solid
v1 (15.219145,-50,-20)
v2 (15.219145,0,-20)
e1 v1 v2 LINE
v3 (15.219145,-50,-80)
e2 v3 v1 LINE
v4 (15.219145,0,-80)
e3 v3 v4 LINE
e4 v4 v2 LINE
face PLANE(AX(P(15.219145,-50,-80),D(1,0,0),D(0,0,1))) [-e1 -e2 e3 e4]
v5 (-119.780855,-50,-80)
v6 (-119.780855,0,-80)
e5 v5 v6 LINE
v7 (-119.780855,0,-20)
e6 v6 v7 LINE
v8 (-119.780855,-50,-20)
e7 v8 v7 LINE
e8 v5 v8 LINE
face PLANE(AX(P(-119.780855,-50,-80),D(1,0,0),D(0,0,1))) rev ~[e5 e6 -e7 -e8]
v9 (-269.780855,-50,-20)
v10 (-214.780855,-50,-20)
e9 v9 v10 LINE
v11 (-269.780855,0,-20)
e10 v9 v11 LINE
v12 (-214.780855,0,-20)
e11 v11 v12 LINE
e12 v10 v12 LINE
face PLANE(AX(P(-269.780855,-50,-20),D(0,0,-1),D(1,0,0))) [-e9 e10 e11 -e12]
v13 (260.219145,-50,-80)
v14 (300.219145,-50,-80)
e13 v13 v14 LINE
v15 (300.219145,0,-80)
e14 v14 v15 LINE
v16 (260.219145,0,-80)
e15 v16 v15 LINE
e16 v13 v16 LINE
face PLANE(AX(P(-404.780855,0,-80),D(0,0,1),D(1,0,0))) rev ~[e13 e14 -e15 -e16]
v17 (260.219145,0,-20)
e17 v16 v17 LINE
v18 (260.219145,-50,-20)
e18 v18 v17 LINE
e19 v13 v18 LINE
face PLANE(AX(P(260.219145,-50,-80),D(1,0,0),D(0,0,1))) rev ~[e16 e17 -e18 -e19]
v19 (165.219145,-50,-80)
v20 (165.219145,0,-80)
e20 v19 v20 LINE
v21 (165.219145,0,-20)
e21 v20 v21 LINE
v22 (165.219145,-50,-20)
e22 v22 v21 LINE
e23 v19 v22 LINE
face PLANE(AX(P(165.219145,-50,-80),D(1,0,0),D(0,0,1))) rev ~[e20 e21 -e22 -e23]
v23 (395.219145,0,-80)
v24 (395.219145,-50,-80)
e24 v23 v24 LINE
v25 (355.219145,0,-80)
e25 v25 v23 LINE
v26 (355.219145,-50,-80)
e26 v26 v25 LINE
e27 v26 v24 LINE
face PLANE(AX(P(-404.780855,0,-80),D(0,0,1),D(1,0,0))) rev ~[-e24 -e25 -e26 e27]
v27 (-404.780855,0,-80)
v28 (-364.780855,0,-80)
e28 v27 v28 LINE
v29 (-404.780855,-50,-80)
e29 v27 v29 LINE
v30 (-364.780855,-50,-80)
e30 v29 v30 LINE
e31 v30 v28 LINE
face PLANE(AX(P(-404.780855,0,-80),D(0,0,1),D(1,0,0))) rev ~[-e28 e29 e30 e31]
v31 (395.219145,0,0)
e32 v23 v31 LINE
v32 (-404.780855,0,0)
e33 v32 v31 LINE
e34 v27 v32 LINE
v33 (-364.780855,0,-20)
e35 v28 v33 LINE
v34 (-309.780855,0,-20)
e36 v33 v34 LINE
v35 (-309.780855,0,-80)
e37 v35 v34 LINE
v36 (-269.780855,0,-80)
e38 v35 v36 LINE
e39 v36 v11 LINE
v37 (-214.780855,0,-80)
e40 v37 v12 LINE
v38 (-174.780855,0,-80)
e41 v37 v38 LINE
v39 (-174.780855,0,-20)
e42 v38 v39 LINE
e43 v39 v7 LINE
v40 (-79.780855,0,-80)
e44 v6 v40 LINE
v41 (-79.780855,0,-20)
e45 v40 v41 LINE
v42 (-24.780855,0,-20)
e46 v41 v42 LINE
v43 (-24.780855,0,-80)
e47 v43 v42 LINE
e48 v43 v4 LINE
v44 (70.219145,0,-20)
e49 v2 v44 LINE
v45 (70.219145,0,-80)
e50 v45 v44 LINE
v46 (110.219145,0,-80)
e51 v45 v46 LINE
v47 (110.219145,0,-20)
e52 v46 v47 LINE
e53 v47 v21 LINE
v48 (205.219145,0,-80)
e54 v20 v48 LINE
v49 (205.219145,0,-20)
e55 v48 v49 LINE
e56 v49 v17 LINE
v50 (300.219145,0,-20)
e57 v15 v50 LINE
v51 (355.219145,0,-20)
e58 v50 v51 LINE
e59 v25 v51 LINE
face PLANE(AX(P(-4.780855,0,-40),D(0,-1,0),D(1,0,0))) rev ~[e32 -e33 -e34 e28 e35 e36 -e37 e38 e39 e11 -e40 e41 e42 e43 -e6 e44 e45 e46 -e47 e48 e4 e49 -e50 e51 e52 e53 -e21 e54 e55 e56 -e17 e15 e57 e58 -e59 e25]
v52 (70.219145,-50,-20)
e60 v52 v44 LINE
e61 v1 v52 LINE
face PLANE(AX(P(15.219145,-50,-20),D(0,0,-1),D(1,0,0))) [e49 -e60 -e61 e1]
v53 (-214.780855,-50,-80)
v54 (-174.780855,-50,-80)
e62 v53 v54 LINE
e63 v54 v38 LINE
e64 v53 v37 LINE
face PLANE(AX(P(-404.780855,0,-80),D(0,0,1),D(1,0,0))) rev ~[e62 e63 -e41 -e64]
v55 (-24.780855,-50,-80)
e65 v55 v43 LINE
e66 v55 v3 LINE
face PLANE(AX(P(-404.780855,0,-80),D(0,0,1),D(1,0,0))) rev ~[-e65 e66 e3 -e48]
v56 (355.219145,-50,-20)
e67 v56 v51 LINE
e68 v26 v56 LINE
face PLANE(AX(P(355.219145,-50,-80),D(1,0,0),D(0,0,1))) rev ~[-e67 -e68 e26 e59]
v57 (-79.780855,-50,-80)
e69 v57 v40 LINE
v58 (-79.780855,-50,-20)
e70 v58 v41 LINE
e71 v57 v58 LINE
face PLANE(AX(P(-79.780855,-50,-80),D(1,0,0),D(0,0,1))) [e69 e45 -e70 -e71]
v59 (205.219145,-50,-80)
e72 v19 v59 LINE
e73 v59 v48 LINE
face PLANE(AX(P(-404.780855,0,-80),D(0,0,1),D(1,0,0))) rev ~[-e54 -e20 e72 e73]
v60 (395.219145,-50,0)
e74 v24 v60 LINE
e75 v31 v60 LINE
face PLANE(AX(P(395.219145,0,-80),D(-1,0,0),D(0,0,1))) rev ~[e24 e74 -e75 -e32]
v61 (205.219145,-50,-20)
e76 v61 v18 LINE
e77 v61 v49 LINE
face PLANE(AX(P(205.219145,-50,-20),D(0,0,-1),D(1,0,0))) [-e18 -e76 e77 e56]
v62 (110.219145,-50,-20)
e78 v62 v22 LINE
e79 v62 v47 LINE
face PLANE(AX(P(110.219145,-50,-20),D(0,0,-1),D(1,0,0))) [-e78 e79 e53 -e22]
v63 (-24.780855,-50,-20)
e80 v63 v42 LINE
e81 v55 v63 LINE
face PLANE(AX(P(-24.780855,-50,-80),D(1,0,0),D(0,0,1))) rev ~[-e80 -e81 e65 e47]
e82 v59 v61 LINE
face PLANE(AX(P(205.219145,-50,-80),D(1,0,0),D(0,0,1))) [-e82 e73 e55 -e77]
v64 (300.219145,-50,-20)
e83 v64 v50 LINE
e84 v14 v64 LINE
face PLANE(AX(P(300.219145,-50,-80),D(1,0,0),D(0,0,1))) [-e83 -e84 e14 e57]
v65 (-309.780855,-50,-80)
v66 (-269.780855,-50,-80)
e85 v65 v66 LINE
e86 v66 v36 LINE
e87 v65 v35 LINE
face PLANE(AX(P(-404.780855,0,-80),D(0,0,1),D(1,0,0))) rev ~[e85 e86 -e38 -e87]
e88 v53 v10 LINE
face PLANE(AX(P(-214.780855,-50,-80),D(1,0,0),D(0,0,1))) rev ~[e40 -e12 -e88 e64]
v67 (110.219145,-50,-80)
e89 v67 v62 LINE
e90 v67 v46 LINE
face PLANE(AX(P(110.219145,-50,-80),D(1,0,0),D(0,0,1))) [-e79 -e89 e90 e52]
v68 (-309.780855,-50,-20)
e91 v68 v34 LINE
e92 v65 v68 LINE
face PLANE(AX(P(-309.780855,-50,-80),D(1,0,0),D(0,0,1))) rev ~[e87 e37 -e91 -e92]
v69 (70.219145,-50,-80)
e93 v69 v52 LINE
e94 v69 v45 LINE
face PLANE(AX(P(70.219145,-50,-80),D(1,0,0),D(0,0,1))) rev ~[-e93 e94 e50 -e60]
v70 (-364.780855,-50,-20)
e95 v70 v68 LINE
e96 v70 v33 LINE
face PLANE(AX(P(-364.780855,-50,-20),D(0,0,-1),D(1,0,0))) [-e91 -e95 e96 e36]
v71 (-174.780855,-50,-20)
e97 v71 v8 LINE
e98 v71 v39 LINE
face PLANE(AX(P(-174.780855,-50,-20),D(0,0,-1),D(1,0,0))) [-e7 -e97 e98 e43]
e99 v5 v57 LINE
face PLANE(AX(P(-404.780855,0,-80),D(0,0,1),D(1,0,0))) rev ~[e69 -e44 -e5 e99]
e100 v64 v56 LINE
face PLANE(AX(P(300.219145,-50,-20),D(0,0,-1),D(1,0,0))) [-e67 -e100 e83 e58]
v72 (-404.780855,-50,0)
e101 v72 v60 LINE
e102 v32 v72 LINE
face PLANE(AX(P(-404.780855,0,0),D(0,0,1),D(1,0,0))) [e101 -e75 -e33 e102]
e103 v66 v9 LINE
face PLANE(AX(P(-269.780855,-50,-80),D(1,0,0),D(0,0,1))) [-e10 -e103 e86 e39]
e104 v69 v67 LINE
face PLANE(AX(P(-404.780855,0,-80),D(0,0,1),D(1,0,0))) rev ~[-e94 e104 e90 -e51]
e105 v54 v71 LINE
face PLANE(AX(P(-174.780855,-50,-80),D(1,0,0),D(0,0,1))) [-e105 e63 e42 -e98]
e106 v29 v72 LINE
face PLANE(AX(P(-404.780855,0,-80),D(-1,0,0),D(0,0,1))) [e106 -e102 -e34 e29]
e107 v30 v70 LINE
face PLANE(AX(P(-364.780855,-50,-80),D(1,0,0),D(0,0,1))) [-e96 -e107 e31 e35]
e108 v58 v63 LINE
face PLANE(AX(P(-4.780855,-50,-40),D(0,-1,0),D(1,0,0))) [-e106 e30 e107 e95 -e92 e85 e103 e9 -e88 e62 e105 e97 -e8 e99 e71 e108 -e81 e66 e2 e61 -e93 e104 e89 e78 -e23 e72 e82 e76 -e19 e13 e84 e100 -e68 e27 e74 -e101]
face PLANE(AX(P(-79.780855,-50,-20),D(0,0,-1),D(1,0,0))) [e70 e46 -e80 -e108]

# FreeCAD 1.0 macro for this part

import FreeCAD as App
import Part
import Sketcher

V = App.Vector


def add_polygon(sketch, points):
    """Adds a closed chain of lines whose ends are joined by coincident constraints."""
    first, n = sketch.GeometryCount, len(points)
    for a, b in zip(points, points[1:] + points[:1]):
        sketch.addGeometry(Part.LineSegment(App.Vector(*a, 0), App.Vector(*b, 0)), False)
    for i in range(n):
        sketch.addConstraint(Sketcher.Constraint("Coincident", first + i, 2, first + (i + 1) % n, 1))

doc = App.newDocument("Part")
params = doc.addObject("Spreadsheet::Sheet", "Params")
for row, (alias, value) in enumerate([
    ("sketch1_width", "800 mm"),
    ("sketch1_height", "80 mm"),
    ("pad1_length", "50 mm"),
    ("sketch2_width", "55 mm"),
    ("sketch2_height", "60 mm"),
    ("pocket1_length", "50 mm"),
], start=1):
    params.set(f"A{row}", alias)
    params.set(f"B{row}", "=" + value)
    params.setAlias(f"B{row}", alias)

body = doc.addObject("PartDesign::Body", "Body")

# Sketch on XZ plane
sketch1 = doc.addObject("Sketcher::SketchObject", "Sketch")
body.addObject(sketch1)
sketch1.AttachmentSupport = (doc.XZ_Plane, [""])
sketch1.MapMode = "FlatFace"
add_polygon(sketch1, [(-404.780855, 0), (-404.780855, -80), (395.219145, -80), (395.219145, 0)])  # lines 0-3
sketch1.addConstraint(Sketcher.Constraint("Vertical", 0))
sketch1.addConstraint(Sketcher.Constraint("Horizontal", 1))
sketch1.addConstraint(Sketcher.Constraint("Vertical", 2))
sketch1.addConstraint(Sketcher.Constraint("Horizontal", 3))
sketch1.addConstraint(Sketcher.Constraint("PointOnObject", 2, 2, -1))
sketch1.addConstraint(Sketcher.Constraint("DistanceX", 1, 1, 1, 2, 800.0))
sketch1.addConstraint(Sketcher.Constraint("DistanceY", 0, 2, 0, 1, 80.0))
sketch1.addConstraint(Sketcher.Constraint("DistanceX", 0, 2, -1, 1, 404.780855))
sketch1.setExpression("Constraints[9]", "Params.sketch1_width")
sketch1.setExpression("Constraints[10]", "Params.sketch1_height")
pad1 = doc.addObject("PartDesign::Pad", "Pad")
body.addObject(pad1)
pad1.Profile = sketch1
pad1.setExpression("Length", "Params.pad1_length")

# Sketch on XZ plane
sketch2 = doc.addObject("Sketcher::SketchObject", "Sketch001")
body.addObject(sketch2)
sketch2.AttachmentSupport = (doc.XZ_Plane, [""])
sketch2.MapMode = "FlatFace"
sketch2.AttachmentOffset = App.Placement(V(0, 0, 50), App.Rotation())
add_polygon(sketch2, [(-364.780855, -20), (-364.780855, -80), (-309.780855, -80), (-309.780855, -20)])  # lines 0-3
add_polygon(sketch2, [(-269.780855, -20), (-269.780855, -80), (-214.780855, -80), (-214.780855, -20)])  # lines 4-7
add_polygon(sketch2, [(-174.780855, -20), (-174.780855, -80), (-119.780855, -80), (-119.780855, -20)])  # lines 8-11
add_polygon(sketch2, [(-79.780855, -20), (-79.780855, -80), (-24.780855, -80), (-24.780855, -20)])  # lines 12-15
add_polygon(sketch2, [(15.219145, -20), (15.219145, -80), (70.219145, -80), (70.219145, -20)])  # lines 16-19
add_polygon(sketch2, [(110.219145, -20), (110.219145, -80), (165.219145, -80), (165.219145, -20)])  # lines 20-23
add_polygon(sketch2, [(205.219145, -20), (205.219145, -80), (260.219145, -80), (260.219145, -20)])  # lines 24-27
add_polygon(sketch2, [(300.219145, -20), (300.219145, -80), (355.219145, -80), (355.219145, -20)])  # lines 28-31
sketch2.addConstraint(Sketcher.Constraint("Vertical", 0))
sketch2.addConstraint(Sketcher.Constraint("Horizontal", 1))
sketch2.addConstraint(Sketcher.Constraint("Vertical", 2))
sketch2.addConstraint(Sketcher.Constraint("Horizontal", 3))
sketch2.addConstraint(Sketcher.Constraint("Vertical", 4))
sketch2.addConstraint(Sketcher.Constraint("Horizontal", 5))
sketch2.addConstraint(Sketcher.Constraint("Vertical", 6))
sketch2.addConstraint(Sketcher.Constraint("Horizontal", 7))
sketch2.addConstraint(Sketcher.Constraint("Vertical", 8))
sketch2.addConstraint(Sketcher.Constraint("Horizontal", 9))
sketch2.addConstraint(Sketcher.Constraint("Vertical", 10))
sketch2.addConstraint(Sketcher.Constraint("Horizontal", 11))
sketch2.addConstraint(Sketcher.Constraint("Vertical", 12))
sketch2.addConstraint(Sketcher.Constraint("Horizontal", 13))
sketch2.addConstraint(Sketcher.Constraint("Vertical", 14))
sketch2.addConstraint(Sketcher.Constraint("Horizontal", 15))
sketch2.addConstraint(Sketcher.Constraint("Vertical", 16))
sketch2.addConstraint(Sketcher.Constraint("Horizontal", 17))
sketch2.addConstraint(Sketcher.Constraint("Vertical", 18))
sketch2.addConstraint(Sketcher.Constraint("Horizontal", 19))
sketch2.addConstraint(Sketcher.Constraint("Vertical", 20))
sketch2.addConstraint(Sketcher.Constraint("Horizontal", 21))
sketch2.addConstraint(Sketcher.Constraint("Vertical", 22))
sketch2.addConstraint(Sketcher.Constraint("Horizontal", 23))
sketch2.addConstraint(Sketcher.Constraint("Vertical", 24))
sketch2.addConstraint(Sketcher.Constraint("Horizontal", 25))
sketch2.addConstraint(Sketcher.Constraint("Vertical", 26))
sketch2.addConstraint(Sketcher.Constraint("Horizontal", 27))
sketch2.addConstraint(Sketcher.Constraint("Vertical", 28))
sketch2.addConstraint(Sketcher.Constraint("Horizontal", 29))
sketch2.addConstraint(Sketcher.Constraint("Vertical", 30))
sketch2.addConstraint(Sketcher.Constraint("Horizontal", 31))
sketch2.addConstraint(Sketcher.Constraint("Horizontal", 1, 2, 4, 2))
sketch2.addConstraint(Sketcher.Constraint("Horizontal", 3, 2, 6, 2))
sketch2.addConstraint(Sketcher.Constraint("Horizontal", 5, 2, 8, 2))
sketch2.addConstraint(Sketcher.Constraint("Horizontal", 7, 2, 10, 2))
sketch2.addConstraint(Sketcher.Constraint("Horizontal", 9, 2, 12, 2))
sketch2.addConstraint(Sketcher.Constraint("Horizontal", 11, 2, 14, 2))
sketch2.addConstraint(Sketcher.Constraint("Horizontal", 13, 2, 16, 2))
sketch2.addConstraint(Sketcher.Constraint("Horizontal", 15, 2, 18, 2))
sketch2.addConstraint(Sketcher.Constraint("Horizontal", 17, 2, 20, 2))
sketch2.addConstraint(Sketcher.Constraint("Horizontal", 19, 2, 22, 2))
sketch2.addConstraint(Sketcher.Constraint("Horizontal", 21, 2, 24, 2))
sketch2.addConstraint(Sketcher.Constraint("Horizontal", 23, 2, 26, 2))
sketch2.addConstraint(Sketcher.Constraint("Horizontal", 25, 2, 28, 2))
sketch2.addConstraint(Sketcher.Constraint("Horizontal", 27, 2, 30, 2))
sketch2.addConstraint(Sketcher.Constraint("Equal", 3, 5))
sketch2.addConstraint(Sketcher.Constraint("Equal", 7, 9))
sketch2.addConstraint(Sketcher.Constraint("Equal", 11, 13))
sketch2.addConstraint(Sketcher.Constraint("Equal", 15, 17))
sketch2.addConstraint(Sketcher.Constraint("Equal", 19, 21))
sketch2.addConstraint(Sketcher.Constraint("Equal", 23, 25))
sketch2.addConstraint(Sketcher.Constraint("Equal", 27, 29))
sketch2.addConstraint(Sketcher.Constraint("DistanceX", 1, 1, 1, 2, 55.0))
sketch2.addConstraint(Sketcher.Constraint("DistanceY", 0, 2, 0, 1, 60.0))
sketch2.addConstraint(Sketcher.Constraint("DistanceY", 0, 2, -1, 1, 80.0))
sketch2.addConstraint(Sketcher.Constraint("DistanceX", 1, 2, 4, 2, 40.0))
sketch2.addConstraint(Sketcher.Constraint("DistanceX", 5, 2, 8, 2, 40.0))
sketch2.addConstraint(Sketcher.Constraint("DistanceX", 9, 2, 12, 2, 40.0))
sketch2.addConstraint(Sketcher.Constraint("DistanceX", 13, 2, 16, 2, 40.0))
sketch2.addConstraint(Sketcher.Constraint("DistanceX", 17, 2, 20, 2, 40.0))
sketch2.addConstraint(Sketcher.Constraint("DistanceX", 21, 2, 24, 2, 40.0))
sketch2.addConstraint(Sketcher.Constraint("DistanceX", 25, 2, 28, 2, 40.0))
sketch2.addConstraint(Sketcher.Constraint("DistanceX", 0, 2, -1, 1, 364.780855))
sketch2.setExpression("Constraints[85]", "Params.sketch2_width")
sketch2.setExpression("Constraints[86]", "Params.sketch2_height")
pocket1 = doc.addObject("PartDesign::Pocket", "Pocket")
body.addObject(pocket1)
pocket1.Profile = sketch2
pocket1.setExpression("Length", "Params.pocket1_length")

doc.recompute()
